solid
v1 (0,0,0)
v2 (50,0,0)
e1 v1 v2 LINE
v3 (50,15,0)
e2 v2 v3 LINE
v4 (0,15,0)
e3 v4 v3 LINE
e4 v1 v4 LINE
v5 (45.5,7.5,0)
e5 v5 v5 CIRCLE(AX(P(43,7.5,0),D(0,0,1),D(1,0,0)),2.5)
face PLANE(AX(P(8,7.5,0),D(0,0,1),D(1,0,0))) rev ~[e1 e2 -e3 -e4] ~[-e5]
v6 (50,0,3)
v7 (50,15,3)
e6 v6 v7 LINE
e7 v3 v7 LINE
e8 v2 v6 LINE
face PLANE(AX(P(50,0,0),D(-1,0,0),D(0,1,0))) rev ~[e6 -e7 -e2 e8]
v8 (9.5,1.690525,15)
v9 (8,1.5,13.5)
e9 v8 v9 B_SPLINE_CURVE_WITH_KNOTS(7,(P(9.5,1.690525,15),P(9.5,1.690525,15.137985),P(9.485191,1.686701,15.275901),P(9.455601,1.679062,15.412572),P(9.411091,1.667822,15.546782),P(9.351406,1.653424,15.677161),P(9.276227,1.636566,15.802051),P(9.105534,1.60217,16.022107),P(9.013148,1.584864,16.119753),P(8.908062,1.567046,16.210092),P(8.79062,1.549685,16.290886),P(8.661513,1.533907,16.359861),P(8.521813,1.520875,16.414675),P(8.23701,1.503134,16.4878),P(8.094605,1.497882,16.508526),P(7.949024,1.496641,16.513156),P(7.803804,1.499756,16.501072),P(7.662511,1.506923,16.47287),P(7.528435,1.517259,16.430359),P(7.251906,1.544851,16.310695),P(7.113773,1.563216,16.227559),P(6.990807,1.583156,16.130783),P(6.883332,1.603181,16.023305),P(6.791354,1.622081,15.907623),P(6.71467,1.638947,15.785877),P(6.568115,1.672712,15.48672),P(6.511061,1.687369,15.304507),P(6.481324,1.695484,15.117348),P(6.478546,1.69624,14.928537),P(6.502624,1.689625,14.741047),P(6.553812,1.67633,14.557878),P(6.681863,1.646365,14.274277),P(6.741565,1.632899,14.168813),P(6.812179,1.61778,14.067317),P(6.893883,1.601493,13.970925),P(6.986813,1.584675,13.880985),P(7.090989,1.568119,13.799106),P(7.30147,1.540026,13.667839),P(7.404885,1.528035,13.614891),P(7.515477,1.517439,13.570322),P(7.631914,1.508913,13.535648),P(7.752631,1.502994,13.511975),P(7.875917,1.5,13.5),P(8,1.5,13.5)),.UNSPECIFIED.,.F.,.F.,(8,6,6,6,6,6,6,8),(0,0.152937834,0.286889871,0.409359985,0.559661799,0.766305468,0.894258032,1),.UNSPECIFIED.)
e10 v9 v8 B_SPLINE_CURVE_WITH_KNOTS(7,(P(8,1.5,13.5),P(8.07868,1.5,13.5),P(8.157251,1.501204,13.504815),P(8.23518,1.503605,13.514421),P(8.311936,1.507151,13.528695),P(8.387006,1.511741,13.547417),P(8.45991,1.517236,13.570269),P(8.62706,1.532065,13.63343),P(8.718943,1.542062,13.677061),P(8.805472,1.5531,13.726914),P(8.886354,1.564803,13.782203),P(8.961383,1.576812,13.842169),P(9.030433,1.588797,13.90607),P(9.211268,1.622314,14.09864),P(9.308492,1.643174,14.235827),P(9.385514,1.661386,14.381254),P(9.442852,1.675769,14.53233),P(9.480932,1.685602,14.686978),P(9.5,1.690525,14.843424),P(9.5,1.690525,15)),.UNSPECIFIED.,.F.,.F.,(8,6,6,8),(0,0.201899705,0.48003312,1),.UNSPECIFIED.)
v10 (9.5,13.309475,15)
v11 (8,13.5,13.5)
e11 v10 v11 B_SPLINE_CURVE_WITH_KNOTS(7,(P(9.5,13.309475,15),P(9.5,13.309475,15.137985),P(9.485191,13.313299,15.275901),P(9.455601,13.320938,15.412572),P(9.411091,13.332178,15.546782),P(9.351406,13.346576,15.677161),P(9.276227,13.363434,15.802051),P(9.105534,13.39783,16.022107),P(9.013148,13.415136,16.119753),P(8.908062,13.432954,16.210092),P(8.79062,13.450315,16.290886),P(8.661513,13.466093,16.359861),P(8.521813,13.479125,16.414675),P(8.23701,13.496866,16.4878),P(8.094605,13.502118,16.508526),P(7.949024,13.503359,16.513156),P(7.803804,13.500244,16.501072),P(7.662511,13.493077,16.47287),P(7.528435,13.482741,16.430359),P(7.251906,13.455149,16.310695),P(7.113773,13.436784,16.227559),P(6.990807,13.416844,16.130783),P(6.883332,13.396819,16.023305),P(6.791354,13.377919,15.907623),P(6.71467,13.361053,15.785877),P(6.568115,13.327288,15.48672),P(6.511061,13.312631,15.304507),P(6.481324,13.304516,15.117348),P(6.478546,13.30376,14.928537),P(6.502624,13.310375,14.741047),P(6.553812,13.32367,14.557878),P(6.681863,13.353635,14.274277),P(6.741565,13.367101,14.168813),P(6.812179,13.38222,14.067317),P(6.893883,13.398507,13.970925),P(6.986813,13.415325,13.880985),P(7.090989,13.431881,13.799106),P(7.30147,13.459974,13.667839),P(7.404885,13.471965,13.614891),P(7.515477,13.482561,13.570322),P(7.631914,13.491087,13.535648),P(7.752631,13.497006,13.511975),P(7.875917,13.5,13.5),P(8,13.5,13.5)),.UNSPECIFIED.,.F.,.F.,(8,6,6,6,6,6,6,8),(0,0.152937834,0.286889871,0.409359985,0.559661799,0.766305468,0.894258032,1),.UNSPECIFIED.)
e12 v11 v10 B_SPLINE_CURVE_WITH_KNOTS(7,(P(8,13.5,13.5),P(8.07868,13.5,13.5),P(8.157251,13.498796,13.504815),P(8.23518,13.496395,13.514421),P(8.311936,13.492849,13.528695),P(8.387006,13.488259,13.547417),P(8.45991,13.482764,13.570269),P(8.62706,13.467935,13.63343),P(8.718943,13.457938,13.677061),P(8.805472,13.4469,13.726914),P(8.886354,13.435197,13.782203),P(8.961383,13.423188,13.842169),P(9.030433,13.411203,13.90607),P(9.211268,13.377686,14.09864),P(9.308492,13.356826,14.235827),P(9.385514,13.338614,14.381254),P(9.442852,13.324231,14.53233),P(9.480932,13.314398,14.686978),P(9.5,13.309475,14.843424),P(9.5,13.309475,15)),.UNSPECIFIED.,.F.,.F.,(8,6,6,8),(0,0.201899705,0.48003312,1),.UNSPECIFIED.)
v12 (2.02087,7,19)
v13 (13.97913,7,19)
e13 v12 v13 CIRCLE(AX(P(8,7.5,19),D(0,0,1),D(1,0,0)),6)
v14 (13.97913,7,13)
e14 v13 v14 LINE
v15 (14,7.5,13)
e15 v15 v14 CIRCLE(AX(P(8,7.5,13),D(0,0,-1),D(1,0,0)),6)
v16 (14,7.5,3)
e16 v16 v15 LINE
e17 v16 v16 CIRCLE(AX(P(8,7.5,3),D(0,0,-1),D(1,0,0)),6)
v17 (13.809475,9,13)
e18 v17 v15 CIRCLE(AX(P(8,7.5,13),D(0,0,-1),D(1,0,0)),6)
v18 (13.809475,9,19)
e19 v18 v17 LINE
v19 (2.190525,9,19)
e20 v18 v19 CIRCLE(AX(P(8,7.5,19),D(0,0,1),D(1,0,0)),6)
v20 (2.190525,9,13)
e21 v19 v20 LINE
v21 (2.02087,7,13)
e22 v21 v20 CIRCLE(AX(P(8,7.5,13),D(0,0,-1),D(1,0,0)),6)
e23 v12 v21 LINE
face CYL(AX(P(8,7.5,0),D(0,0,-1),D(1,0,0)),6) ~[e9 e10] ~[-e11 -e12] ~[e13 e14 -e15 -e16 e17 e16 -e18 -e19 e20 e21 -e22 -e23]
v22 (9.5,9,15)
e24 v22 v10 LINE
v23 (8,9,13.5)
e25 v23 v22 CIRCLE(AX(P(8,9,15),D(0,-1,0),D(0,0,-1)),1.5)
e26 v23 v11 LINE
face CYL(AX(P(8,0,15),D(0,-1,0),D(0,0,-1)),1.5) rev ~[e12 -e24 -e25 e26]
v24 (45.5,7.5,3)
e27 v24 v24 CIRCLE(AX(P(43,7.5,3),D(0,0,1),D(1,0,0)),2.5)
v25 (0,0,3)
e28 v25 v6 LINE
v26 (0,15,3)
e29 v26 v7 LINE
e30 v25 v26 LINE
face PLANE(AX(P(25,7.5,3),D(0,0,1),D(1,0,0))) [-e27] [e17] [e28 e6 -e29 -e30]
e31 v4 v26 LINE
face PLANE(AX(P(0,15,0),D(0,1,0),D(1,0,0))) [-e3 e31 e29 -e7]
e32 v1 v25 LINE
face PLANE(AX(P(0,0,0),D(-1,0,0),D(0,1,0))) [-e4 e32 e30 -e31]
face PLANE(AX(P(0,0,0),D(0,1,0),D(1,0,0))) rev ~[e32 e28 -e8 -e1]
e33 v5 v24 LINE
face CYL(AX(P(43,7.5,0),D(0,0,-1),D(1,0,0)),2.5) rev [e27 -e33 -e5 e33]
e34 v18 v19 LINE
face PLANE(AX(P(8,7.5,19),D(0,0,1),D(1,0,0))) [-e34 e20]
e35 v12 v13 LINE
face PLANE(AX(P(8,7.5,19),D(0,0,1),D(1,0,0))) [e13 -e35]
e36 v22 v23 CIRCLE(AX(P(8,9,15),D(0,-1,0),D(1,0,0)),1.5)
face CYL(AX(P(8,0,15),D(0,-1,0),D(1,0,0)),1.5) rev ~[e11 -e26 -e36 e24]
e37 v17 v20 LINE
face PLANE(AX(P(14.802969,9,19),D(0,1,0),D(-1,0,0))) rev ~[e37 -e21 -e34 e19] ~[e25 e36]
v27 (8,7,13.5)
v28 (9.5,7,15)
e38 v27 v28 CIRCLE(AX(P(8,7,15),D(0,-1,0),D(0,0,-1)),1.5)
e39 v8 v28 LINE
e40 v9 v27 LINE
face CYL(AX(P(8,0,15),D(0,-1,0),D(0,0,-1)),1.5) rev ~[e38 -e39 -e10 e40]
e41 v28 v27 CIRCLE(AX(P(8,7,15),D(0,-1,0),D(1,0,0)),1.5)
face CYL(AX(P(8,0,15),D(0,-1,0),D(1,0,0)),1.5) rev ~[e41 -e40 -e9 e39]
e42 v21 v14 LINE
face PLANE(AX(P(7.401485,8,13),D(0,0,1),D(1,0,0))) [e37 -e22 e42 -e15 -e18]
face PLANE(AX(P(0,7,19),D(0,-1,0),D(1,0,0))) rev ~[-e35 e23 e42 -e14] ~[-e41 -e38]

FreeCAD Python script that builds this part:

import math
import FreeCAD as App
import Part
import Sketcher
Q = App.Units.Quantity

doc = App.newDocument("Part")
body = doc.addObject("PartDesign::Body", "Body")

sketch1 = body.newObject("Sketcher::SketchObject", "Sketch")
sketch1.AttachmentSupport = (doc.getObject("XY_Plane"), [""])
sketch1.MapMode = "FlatFace"
sketch1.addGeometry([
    Part.LineSegment(App.Vector(0, 15, 0), App.Vector(0, 0, 0)),
    Part.LineSegment(App.Vector(0, 0, 0), App.Vector(50, 0, 0)),
    Part.LineSegment(App.Vector(50, 0, 0), App.Vector(50, 15, 0)),
    Part.LineSegment(App.Vector(50, 15, 0), App.Vector(0, 15, 0)),
    Part.Circle(App.Vector(43, 7.5, 0), App.Vector(0, 0, 1), 2.5),
], False)
sketch1.addConstraint([
    Sketcher.Constraint("Coincident", 0, 2, 1, 1),
    Sketcher.Constraint("Coincident", 1, 2, 2, 1),
    Sketcher.Constraint("Coincident", 2, 2, 3, 1),
    Sketcher.Constraint("Coincident", 3, 2, 0, 1),
    Sketcher.Constraint("Vertical", 0),
    Sketcher.Constraint("Horizontal", 1),
    Sketcher.Constraint("Vertical", 2),
    Sketcher.Constraint("Horizontal", 3),
    Sketcher.Constraint("Coincident", 0, 2, -1, 1),
    Sketcher.Constraint("Diameter", 4, Q("5 mm")),
    Sketcher.Constraint("DistanceX", 1, 1, 1, 2, Q("50 mm")),
    Sketcher.Constraint("DistanceY", 0, 2, 0, 1, Q("15 mm")),
    Sketcher.Constraint("DistanceX", -1, 1, 4, 3, Q("43 mm")),
    Sketcher.Constraint("DistanceY", -1, 1, 4, 3, Q("7.5 mm")),
])
pad1 = body.newObject("PartDesign::Pad", "Pad")
pad1.Profile = sketch1
pad1.Length = 3

sketch2 = body.newObject("Sketcher::SketchObject", "Sketch001")
sketch2.AttachmentSupport = (doc.getObject("XY_Plane"), [""])
sketch2.MapMode = "FlatFace"
sketch2.addGeometry(Part.Circle(App.Vector(8, 8, 0), App.Vector(0, 0, 1), 6), False)
sketch2.addConstraint([
    Sketcher.Constraint("Diameter", 0, Q("12 mm")),
    Sketcher.Constraint("DistanceX", -1, 1, 0, 3, Q("8 mm")),
    Sketcher.Constraint("DistanceY", -1, 1, 0, 3, Q("7.5 mm")),
])
pad2 = body.newObject("PartDesign::Pad", "Pad001")
pad2.Profile = sketch2
pad2.Length = 19

sketch3 = body.newObject("Sketcher::SketchObject", "Sketch002")
sketch3.AttachmentSupport = (doc.getObject("XY_Plane"), [""])
sketch3.MapMode = "FlatFace"
sketch3.AttachmentOffset = App.Placement(App.Vector(0, 0, 19), App.Rotation())
sketch3.addGeometry([
    Part.LineSegment(App.Vector(0, 7, 0), App.Vector(14.8, 7, 0)),
    Part.LineSegment(App.Vector(14.8, 7, 0), App.Vector(14.8, 9, 0)),
    Part.LineSegment(App.Vector(14.8, 9, 0), App.Vector(0, 9, 0)),
    Part.LineSegment(App.Vector(0, 9, 0), App.Vector(0, 7, 0)),
], False)
sketch3.addConstraint([
    Sketcher.Constraint("Coincident", 0, 2, 1, 1),
    Sketcher.Constraint("Coincident", 1, 2, 2, 1),
    Sketcher.Constraint("Coincident", 2, 2, 3, 1),
    Sketcher.Constraint("Coincident", 3, 2, 0, 1),
    Sketcher.Constraint("Horizontal", 0),
    Sketcher.Constraint("Vertical", 1),
    Sketcher.Constraint("Horizontal", 2),
    Sketcher.Constraint("Vertical", 3),
    Sketcher.Constraint("PointOnObject", 2, 2, -2),
    Sketcher.Constraint("DistanceY", 1, 1, 1, 2, Q("2 mm")),
    Sketcher.Constraint("DistanceY", -1, 1, 0, 2, Q("7 mm")),
    Sketcher.Constraint("DistanceX", 0, 1, 0, 2, Q("14.802969 mm")),
])
pocket1 = body.newObject("PartDesign::Pocket", "Pocket")
pocket1.Profile = sketch3
pocket1.Length = 6

sketch4 = body.newObject("Sketcher::SketchObject", "Sketch003")
sketch4.AttachmentSupport = (doc.getObject("XZ_Plane"), [""])
sketch4.MapMode = "FlatFace"
sketch4.addGeometry([
    Part.ArcOfCircle(Part.Circle(App.Vector(8, 15, 0), App.Vector(0, 0, 1), 1.5), math.radians(-90), math.radians(0)),
    Part.ArcOfCircle(Part.Circle(App.Vector(8, 15, 0), App.Vector(0, 0, 1), 1.5), math.radians(0), math.radians(270)),
], False)
sketch4.addConstraint([
    Sketcher.Constraint("Tangent", 0, 1, 1, 2),
    Sketcher.Constraint("Coincident", 1, 1, 0, 2),
    Sketcher.Constraint("Horizontal", 0, 3, 1, 1),
    Sketcher.Constraint("Vertical", 1, 3, 0, 1),
    Sketcher.Constraint("Radius", 0, Q("1.5 mm")),
    Sketcher.Constraint("DistanceX", -1, 1, 0, 3, Q("8 mm")),
    Sketcher.Constraint("DistanceY", -1, 1, 0, 3, Q("15 mm")),
])
pocket2 = body.newObject("PartDesign::Pocket", "Pocket001")
pocket2.Profile = sketch4
pocket2.Length = 25

doc.recompute()
